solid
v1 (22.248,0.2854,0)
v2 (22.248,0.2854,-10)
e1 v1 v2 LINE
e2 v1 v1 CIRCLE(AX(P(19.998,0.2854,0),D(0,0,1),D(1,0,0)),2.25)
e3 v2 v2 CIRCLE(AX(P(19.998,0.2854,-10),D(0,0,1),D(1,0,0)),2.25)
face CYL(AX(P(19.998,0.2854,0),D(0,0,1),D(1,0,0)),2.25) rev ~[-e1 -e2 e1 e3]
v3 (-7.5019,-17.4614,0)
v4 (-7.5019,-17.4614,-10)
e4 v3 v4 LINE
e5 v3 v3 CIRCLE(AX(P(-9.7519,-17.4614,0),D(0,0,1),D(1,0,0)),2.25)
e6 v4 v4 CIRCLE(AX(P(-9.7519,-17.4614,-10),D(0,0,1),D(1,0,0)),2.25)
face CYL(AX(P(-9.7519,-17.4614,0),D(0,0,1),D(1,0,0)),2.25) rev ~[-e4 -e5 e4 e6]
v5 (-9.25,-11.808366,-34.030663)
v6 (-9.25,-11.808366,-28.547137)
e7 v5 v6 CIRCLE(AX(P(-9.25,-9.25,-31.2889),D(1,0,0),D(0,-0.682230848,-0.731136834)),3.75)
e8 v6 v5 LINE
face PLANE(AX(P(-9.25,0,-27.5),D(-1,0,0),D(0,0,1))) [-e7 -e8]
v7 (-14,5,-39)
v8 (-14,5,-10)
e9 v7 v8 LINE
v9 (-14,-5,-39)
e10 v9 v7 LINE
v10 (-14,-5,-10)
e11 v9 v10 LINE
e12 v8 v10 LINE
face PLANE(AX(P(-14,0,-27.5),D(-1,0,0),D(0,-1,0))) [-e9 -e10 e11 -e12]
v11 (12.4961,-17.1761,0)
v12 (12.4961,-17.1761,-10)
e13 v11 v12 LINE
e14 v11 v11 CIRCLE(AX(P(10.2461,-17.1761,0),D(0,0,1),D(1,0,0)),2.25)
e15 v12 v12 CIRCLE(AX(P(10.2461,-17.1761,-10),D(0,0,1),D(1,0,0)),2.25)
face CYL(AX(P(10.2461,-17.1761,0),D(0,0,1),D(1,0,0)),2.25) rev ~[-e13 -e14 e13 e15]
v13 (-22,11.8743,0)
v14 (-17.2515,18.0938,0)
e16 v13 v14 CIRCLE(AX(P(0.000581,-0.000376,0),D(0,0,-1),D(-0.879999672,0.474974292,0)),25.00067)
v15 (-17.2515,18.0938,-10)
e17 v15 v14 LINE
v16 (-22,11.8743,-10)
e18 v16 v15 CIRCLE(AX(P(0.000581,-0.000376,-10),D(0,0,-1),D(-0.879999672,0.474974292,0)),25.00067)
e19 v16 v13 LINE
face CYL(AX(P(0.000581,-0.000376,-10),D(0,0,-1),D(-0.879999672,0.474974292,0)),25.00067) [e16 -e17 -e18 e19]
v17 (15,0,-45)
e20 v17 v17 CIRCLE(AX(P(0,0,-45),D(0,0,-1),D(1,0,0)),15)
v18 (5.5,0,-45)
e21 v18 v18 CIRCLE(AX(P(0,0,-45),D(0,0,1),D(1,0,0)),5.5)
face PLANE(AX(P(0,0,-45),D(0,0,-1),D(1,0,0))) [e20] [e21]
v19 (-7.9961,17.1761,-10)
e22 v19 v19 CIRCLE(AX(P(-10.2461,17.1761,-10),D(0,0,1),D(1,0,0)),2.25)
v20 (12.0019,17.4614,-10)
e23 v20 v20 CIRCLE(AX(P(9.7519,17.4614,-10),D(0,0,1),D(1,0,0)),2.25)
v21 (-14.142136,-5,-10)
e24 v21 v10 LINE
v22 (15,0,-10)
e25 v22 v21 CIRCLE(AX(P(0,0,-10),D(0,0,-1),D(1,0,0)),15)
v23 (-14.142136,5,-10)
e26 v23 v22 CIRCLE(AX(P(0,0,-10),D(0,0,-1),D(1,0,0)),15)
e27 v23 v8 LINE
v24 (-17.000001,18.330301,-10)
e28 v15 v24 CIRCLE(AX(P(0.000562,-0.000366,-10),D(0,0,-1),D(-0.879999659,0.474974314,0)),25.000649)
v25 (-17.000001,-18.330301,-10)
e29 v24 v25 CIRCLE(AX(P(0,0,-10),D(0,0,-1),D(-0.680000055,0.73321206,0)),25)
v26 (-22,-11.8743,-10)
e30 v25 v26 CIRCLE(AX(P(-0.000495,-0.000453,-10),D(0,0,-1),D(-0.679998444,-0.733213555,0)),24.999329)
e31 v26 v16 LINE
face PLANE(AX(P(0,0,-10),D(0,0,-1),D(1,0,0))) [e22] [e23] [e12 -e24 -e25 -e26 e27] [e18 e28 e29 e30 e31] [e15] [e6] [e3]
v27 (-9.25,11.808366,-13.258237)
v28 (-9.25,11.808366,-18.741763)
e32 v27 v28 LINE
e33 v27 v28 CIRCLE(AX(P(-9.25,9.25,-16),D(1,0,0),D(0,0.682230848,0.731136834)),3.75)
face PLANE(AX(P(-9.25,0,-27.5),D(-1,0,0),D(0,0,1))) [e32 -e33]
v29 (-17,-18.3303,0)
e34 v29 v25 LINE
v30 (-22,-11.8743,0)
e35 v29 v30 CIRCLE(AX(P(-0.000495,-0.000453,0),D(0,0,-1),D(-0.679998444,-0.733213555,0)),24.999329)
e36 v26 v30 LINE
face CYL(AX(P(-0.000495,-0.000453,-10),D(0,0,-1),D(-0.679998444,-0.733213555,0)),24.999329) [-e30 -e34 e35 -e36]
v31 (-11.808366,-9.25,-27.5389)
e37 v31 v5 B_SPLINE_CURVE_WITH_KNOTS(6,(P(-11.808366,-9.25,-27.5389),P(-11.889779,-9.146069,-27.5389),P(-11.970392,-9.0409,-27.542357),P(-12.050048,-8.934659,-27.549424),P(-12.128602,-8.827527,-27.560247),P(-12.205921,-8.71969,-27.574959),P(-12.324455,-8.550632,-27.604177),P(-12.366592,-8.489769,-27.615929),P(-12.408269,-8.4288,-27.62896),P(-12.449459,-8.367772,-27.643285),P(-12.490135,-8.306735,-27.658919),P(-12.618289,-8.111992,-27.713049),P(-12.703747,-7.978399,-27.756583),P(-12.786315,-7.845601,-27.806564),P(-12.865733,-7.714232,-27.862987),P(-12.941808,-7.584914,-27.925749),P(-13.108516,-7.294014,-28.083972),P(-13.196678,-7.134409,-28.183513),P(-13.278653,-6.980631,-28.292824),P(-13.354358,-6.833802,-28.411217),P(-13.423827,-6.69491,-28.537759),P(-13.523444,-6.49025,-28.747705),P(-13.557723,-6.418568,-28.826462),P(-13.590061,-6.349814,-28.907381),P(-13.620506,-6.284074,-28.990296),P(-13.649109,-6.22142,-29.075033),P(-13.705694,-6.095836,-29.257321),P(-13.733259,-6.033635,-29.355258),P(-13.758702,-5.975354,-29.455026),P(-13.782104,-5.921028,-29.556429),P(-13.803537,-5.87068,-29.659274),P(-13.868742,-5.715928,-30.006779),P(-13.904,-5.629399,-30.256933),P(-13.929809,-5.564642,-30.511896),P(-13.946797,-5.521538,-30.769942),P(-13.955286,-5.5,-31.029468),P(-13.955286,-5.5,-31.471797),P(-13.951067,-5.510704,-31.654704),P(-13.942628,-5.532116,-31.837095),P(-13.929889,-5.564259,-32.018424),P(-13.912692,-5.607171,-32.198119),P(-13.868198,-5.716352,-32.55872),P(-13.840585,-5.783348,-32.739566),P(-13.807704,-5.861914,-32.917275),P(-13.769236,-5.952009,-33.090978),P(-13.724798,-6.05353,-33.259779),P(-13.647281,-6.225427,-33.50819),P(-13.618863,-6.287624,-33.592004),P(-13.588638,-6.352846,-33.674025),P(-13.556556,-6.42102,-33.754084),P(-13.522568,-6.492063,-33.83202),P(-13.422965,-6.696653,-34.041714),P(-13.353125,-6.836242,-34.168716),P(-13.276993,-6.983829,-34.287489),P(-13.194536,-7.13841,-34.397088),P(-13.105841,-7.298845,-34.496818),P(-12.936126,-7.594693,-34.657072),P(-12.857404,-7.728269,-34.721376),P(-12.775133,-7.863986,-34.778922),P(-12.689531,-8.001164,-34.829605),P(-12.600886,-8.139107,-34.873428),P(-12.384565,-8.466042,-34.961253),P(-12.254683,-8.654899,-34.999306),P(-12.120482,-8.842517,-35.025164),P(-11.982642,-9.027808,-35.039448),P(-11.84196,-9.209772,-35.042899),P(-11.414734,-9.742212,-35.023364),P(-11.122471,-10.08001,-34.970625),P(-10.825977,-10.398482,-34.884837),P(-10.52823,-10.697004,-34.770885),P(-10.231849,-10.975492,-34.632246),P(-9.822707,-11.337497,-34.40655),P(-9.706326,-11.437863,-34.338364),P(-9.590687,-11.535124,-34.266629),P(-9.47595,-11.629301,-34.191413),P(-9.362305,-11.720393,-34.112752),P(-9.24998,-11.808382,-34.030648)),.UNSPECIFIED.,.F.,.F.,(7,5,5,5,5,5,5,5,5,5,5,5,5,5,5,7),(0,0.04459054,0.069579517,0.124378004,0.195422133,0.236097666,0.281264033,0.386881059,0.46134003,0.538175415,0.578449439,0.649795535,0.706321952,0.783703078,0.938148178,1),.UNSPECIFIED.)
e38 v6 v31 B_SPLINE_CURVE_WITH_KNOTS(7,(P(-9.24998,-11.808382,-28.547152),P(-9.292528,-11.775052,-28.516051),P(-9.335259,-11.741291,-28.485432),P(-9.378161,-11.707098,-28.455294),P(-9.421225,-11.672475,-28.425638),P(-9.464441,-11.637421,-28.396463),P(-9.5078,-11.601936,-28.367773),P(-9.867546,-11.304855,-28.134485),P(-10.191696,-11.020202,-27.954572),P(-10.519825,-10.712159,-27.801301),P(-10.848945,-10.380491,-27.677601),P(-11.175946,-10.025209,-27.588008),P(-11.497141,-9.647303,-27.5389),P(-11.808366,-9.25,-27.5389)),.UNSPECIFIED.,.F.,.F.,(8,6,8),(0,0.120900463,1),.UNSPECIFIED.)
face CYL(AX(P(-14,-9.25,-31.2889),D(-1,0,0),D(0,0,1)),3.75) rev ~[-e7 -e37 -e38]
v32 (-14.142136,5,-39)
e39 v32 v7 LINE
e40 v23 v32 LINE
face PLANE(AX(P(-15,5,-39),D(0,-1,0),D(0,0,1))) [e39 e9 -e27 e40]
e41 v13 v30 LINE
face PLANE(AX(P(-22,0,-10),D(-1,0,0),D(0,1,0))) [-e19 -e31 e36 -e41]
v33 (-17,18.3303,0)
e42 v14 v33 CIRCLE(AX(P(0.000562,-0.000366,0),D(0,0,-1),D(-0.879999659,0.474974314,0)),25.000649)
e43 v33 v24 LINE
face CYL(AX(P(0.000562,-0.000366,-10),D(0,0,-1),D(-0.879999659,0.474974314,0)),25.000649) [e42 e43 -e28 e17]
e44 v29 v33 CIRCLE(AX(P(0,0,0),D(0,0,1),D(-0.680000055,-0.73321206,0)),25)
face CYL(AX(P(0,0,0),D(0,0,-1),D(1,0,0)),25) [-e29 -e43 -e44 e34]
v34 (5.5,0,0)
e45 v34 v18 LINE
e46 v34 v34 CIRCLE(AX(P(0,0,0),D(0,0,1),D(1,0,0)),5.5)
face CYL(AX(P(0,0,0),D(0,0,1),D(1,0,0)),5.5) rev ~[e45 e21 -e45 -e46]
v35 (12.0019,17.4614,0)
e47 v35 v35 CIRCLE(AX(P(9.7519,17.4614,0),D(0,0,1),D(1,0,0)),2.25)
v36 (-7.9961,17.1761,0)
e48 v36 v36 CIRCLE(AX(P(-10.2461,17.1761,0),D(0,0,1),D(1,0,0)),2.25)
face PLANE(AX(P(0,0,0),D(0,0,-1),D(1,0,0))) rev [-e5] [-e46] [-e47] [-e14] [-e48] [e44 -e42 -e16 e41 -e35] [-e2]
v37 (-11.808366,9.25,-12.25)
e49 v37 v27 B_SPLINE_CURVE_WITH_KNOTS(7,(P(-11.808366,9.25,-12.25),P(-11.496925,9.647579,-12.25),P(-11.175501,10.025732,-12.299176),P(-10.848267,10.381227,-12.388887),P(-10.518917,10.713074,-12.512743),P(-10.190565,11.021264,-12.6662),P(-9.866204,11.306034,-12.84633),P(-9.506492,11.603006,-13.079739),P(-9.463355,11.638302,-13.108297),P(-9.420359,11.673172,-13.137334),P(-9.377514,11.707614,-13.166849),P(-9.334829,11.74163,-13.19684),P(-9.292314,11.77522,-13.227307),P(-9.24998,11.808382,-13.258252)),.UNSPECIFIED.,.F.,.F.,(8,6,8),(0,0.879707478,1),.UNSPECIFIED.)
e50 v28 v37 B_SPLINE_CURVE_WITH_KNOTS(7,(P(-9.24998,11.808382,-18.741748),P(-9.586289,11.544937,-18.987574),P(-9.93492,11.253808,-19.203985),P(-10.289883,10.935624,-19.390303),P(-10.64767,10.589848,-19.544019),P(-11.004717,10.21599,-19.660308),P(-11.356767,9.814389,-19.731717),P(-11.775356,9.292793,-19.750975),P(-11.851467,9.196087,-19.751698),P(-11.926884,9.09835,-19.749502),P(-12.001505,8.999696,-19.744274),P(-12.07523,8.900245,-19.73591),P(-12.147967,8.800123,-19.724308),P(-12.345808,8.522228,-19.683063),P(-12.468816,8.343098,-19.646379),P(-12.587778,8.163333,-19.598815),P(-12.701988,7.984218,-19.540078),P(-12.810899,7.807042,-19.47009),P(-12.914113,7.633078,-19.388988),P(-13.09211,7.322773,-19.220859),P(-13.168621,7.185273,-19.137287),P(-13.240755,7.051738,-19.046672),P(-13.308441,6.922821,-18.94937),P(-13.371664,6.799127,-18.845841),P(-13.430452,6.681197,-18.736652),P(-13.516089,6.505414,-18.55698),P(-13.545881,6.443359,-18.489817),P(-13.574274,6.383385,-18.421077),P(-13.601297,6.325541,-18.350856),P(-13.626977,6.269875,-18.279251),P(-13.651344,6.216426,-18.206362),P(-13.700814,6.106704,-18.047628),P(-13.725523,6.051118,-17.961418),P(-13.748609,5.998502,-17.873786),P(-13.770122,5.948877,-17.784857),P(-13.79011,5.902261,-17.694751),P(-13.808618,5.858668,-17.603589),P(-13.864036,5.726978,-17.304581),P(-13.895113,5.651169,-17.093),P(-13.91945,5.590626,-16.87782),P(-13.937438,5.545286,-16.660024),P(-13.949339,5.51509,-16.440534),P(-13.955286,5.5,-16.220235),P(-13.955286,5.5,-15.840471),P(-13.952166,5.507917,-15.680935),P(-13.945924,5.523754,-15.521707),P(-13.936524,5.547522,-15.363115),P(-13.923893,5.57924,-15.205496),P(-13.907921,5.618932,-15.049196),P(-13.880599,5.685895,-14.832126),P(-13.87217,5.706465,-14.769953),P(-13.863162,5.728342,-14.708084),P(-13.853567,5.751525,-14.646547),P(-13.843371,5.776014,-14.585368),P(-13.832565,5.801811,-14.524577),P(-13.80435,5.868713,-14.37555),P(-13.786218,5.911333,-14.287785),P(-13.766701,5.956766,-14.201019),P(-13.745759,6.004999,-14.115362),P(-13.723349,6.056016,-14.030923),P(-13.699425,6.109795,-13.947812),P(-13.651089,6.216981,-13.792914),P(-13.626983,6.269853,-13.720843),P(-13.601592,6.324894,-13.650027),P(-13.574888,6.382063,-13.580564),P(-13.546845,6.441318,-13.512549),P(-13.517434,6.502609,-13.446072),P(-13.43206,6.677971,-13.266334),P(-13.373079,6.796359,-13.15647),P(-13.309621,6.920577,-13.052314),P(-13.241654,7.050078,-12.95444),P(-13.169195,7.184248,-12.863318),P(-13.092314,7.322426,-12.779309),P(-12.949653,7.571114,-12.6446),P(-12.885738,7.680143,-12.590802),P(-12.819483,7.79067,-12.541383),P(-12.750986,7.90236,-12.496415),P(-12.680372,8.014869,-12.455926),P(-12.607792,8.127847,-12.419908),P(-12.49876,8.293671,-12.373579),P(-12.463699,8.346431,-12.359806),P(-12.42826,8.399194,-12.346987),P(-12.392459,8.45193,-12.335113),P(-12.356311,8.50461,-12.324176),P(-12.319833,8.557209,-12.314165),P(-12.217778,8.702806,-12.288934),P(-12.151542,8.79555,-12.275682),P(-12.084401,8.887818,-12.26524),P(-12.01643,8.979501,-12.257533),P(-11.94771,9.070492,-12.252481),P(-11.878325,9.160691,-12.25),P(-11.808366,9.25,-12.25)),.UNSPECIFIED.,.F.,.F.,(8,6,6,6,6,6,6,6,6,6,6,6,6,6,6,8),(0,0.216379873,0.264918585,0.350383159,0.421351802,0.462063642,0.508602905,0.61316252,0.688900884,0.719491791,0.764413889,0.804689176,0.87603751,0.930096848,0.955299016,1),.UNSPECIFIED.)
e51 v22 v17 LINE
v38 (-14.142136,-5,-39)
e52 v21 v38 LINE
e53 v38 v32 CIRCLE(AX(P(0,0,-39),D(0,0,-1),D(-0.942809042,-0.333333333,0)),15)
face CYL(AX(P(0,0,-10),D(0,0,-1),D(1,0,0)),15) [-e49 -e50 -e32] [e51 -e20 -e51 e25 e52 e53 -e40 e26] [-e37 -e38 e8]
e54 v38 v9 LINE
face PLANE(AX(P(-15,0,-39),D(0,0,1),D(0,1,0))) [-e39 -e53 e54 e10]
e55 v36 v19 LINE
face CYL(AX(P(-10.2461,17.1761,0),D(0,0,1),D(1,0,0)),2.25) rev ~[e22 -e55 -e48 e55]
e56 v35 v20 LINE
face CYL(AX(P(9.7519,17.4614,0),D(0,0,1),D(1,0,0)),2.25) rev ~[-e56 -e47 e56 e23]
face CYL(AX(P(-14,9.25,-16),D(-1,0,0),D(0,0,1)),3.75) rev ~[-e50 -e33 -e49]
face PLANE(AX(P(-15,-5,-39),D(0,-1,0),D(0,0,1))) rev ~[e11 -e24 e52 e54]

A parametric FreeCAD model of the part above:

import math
import FreeCAD as App
import Part
import Sketcher

V = App.Vector
Q = App.Units.Quantity


def add_polygon(sketch, points):
    """Adds a closed chain of lines whose ends are joined by coincident constraints."""
    first, n = sketch.GeometryCount, len(points)
    for a, b in zip(points, points[1:] + points[:1]):
        sketch.addGeometry(Part.LineSegment(App.Vector(*a, 0), App.Vector(*b, 0)), False)
    for i in range(n):
        sketch.addConstraint(Sketcher.Constraint("Coincident", first + i, 2, first + (i + 1) % n, 1))

doc = App.newDocument("Part")
body = doc.addObject("PartDesign::Body", "Body")

# Sketch on XZ plane
sketch1 = doc.addObject("Sketcher::SketchObject", "Sketch")
body.addObject(sketch1)
sketch1.AttachmentSupport = (doc.XZ_Plane, [""])
sketch1.MapMode = "FlatFace"
add_polygon(sketch1, [(0, -45), (0, 0), (25, 0), (25, -10), (15, -10), (15, -45)])  # lines 0-5
sketch1.addConstraint([
    Sketcher.Constraint("Vertical", 0),
    Sketcher.Constraint("Horizontal", 1),
    Sketcher.Constraint("Vertical", 2),
    Sketcher.Constraint("Horizontal", 3),
    Sketcher.Constraint("Vertical", 4),
    Sketcher.Constraint("Horizontal", 5),
    Sketcher.Constraint("Coincident", 0, 2, -1, 1),
    Sketcher.Constraint("Equal", 3, 2),
    Sketcher.Constraint("DistanceX", 1, 1, 1, 2, Q("25 mm")),
    Sketcher.Constraint("DistanceX", 3, 2, 3, 1, Q("10 mm")),
    Sketcher.Constraint("DistanceY", 4, 2, 4, 1, Q("35 mm")),
])
revolution = doc.addObject("PartDesign::Revolution", "Revolution")
body.addObject(revolution)
revolution.Profile = sketch1
revolution.ReferenceAxis = (sketch1, ["V_Axis"])
revolution.Angle = 360

# Sketch on XY plane
sketch2 = doc.addObject("Sketcher::SketchObject", "Sketch001")
body.addObject(sketch2)
sketch2.AttachmentSupport = (doc.XY_Plane, [""])
sketch2.MapMode = "FlatFace"
sketch2.addGeometry([
    Part.Circle(V(9.8, 17.5, 0), V(0, 0, 1), 2.2),  # 0
    Part.Circle(V(20, 0.3, 0), V(0, 0, 1), 2.2),  # 1
    Part.Circle(V(10.2, -17.2, 0), V(0, 0, 1), 2.2),  # 2
    Part.Circle(V(-9.8, -17.5, 0), V(0, 0, 1), 2.2),  # 3
    Part.Circle(V(-20, -0.3, 0), V(0, 0, 1), 2.2),  # 4
    Part.Circle(V(-10.2, 17.2, 0), V(0, 0, 1), 2.2),  # 5
], False)
sketch2.addConstraint([
    Sketcher.Constraint("Equal", 0, 1),
    Sketcher.Constraint("Equal", 1, 2),
    Sketcher.Constraint("Equal", 2, 3),
    Sketcher.Constraint("Equal", 3, 4),
    Sketcher.Constraint("Equal", 4, 5),
    Sketcher.Constraint("Symmetric", 0, 3, 3, 3, -1, 1),
    Sketcher.Constraint("Symmetric", 1, 3, 4, 3, -1, 1),
    Sketcher.Constraint("Symmetric", 2, 3, 5, 3, -1, 1),
    Sketcher.Constraint("Diameter", 0, Q("4.5 mm")),
    Sketcher.Constraint("DistanceX", 3, 3, 1, 3, Q("29.75 mm")),
    Sketcher.Constraint("DistanceX", -1, 1, 0, 3, Q("9.752 mm")),
    Sketcher.Constraint("DistanceX", -1, 1, 2, 3, Q("10.246 mm")),
    Sketcher.Constraint("DistanceY", 2, 3, -1, 1, Q("17.176 mm")),
    Sketcher.Constraint("DistanceY", 1, 3, 0, 3, Q("17.176 mm")),
    Sketcher.Constraint("DistanceY", -1, 1, 0, 3, Q("17.4614 mm")),
])
pocket1 = doc.addObject("PartDesign::Pocket", "Pocket")
body.addObject(pocket1)
pocket1.Profile = sketch2
pocket1.Type = "ThroughAll"

# Sketch on XY plane
sketch3 = doc.addObject("Sketcher::SketchObject", "Sketch002")
body.addObject(sketch3)
sketch3.AttachmentSupport = (doc.XY_Plane, [""])
sketch3.MapMode = "FlatFace"
sketch3.addGeometry(Part.Circle(V(0, 0, 0), V(0, 0, 1), 6), False)
sketch3.addConstraint([
    Sketcher.Constraint("Coincident", 0, 3, -1, 1),
    Sketcher.Constraint("Diameter", 0, Q("11 mm")),
])
pocket2 = doc.addObject("PartDesign::Pocket", "Pocket001")
body.addObject(pocket2)
pocket2.Profile = sketch3
pocket2.Type = "ThroughAll"

# Sketch on XY plane
sketch4 = doc.addObject("Sketcher::SketchObject", "Sketch003")
body.addObject(sketch4)
sketch4.AttachmentSupport = (doc.XY_Plane, [""])
sketch4.MapMode = "FlatFace"
sketch4.addGeometry([
    Part.LineSegment(V(-17, -18, 0), V(-17, 18, 0)),
    Part.ArcOfCircle(Part.Circle(V(0, 0, 0), V(0, 0, 1), 25), math.radians(133), math.radians(227)),
], False)
sketch4.addConstraint([
    Sketcher.Constraint("Coincident", 0, 1, 1, 2),
    Sketcher.Constraint("Coincident", 1, 1, 0, 2),
    Sketcher.Constraint("Vertical", 0),
    Sketcher.Constraint("Coincident", 1, 3, -1, 1),
    Sketcher.Constraint("Radius", 1, Q("25 mm")),
    Sketcher.Constraint("DistanceX", 0, 1, -1, 1, Q("17 mm")),
])
pocket3 = doc.addObject("PartDesign::Pocket", "Pocket002")
body.addObject(pocket3)
pocket3.Profile = sketch4
pocket3.Length = 15

# Sketch on YZ plane
sketch5 = doc.addObject("Sketcher::SketchObject", "Sketch004")
body.addObject(sketch5)
sketch5.AttachmentSupport = (doc.YZ_Plane, [""])
sketch5.MapMode = "FlatFace"
sketch5.AttachmentOffset = App.Placement(V(0, 0, -15), App.Rotation())
add_polygon(sketch5, [(-5, -10), (5, -10), (5, -39), (-5, -39)])  # lines 0-3
sketch5.addConstraint([
    Sketcher.Constraint("Horizontal", 0),
    Sketcher.Constraint("Vertical", 1),
    Sketcher.Constraint("Horizontal", 2),
    Sketcher.Constraint("Vertical", 3),
    Sketcher.Constraint("DistanceX", 0, 1, 0, 2, Q("10 mm")),
    Sketcher.Constraint("DistanceY", 1, 2, 1, 1, Q("29 mm")),
    Sketcher.Constraint("DistanceX", -1, 1, 0, 2, Q("5 mm")),
    Sketcher.Constraint("DistanceY", 0, 2, -1, 1, Q("10 mm")),
])
pocket4 = doc.addObject("PartDesign::Pocket", "Pocket003")
body.addObject(pocket4)
pocket4.Profile = sketch5
pocket4.Length = 1
pocket4.Reversed = True

# Sketch on XY plane
sketch6 = doc.addObject("Sketcher::SketchObject", "Sketch005")
body.addObject(sketch6)
sketch6.AttachmentSupport = (doc.XY_Plane, [""])
sketch6.MapMode = "FlatFace"
sketch6.AttachmentOffset = App.Placement(V(0, 0, -10), App.Rotation())
sketch6.addGeometry([
    Part.LineSegment(V(-17, 18.33, 0), V(-17, -18.33, 0)),  # 0
    Part.ArcOfCircle(Part.Circle(V(0, 0, 0), V(0, 0, 1), 25), math.radians(-151.64), math.radians(-132.84)),  # 1
    Part.LineSegment(V(-22, -11.87, 0), V(-22, 11.87, 0)),  # 2
    Part.ArcOfCircle(Part.Circle(V(0, 0, 0), V(0, 0, 1), 25), math.radians(133.63), math.radians(151.64)),  # 3
    Part.ArcOfCircle(Part.Circle(V(0, 0, 0), V(0, 0, 1), 25), math.radians(132.84), math.radians(133.63)),  # 4
], False)
sketch6.addConstraint([
    Sketcher.Constraint("Coincident", 0, 2, 1, 2),
    Sketcher.Constraint("Coincident", 1, 1, 2, 1),
    Sketcher.Constraint("Coincident", 2, 2, 3, 2),
    Sketcher.Constraint("Tangent", 3, 1, 4, 2),
    Sketcher.Constraint("Coincident", 4, 1, 0, 1),
    Sketcher.Constraint("Vertical", 0),
    Sketcher.Constraint("Vertical", 2),
    Sketcher.Constraint("Coincident", 1, 3, -1, 1),
    Sketcher.Constraint("Coincident", 3, 3, -1, 1),
    Sketcher.Constraint("Equal", 1, 3),
    Sketcher.Constraint("Equal", 3, 4),
    Sketcher.Constraint("Radius", 1, Q("25 mm")),
    Sketcher.Constraint("DistanceX", 0, 2, -1, 1, Q("17 mm")),
    Sketcher.Constraint("DistanceX", 1, 1, -1, 1, Q("22 mm")),
    Sketcher.Constraint("DistanceY", 1, 1, 3, 1, Q("29.968 mm")),
])
pad1 = doc.addObject("PartDesign::Pad", "Pad")
body.addObject(pad1)
pad1.Profile = sketch6
pad1.Length = 10

# Sketch on YZ plane
sketch7 = doc.addObject("Sketcher::SketchObject", "Sketch006")
body.addObject(sketch7)
sketch7.AttachmentSupport = (doc.YZ_Plane, [""])
sketch7.MapMode = "FlatFace"
sketch7.AttachmentOffset = App.Placement(V(0, 0, -14), App.Rotation())
sketch7.addGeometry([
    Part.Circle(V(9.2, -16, 0), V(0, 0, 1), 3.8),
    Part.Circle(V(-9.2, -31.3, 0), V(0, 0, 1), 3.8),
], False)
sketch7.addConstraint([
    Sketcher.Constraint("Equal", 0, 1),
    Sketcher.Constraint("Diameter", 0, Q("7.5 mm")),
    Sketcher.Constraint("DistanceY", 0, 3, -1, 1, Q("16 mm")),
    Sketcher.Constraint("DistanceX", 1, 3, 0, 3, Q("18.5 mm")),
    Sketcher.Constraint("DistanceX", -1, 1, 0, 3, Q("9.25 mm")),
    Sketcher.Constraint("DistanceY", 1, 3, -1, 1, Q("31.289 mm")),
])
pocket5 = doc.addObject("PartDesign::Pocket", "Pocket004")
body.addObject(pocket5)
pocket5.Profile = sketch7
pocket5.Length = 4.75
pocket5.Reversed = True

doc.recompute()
